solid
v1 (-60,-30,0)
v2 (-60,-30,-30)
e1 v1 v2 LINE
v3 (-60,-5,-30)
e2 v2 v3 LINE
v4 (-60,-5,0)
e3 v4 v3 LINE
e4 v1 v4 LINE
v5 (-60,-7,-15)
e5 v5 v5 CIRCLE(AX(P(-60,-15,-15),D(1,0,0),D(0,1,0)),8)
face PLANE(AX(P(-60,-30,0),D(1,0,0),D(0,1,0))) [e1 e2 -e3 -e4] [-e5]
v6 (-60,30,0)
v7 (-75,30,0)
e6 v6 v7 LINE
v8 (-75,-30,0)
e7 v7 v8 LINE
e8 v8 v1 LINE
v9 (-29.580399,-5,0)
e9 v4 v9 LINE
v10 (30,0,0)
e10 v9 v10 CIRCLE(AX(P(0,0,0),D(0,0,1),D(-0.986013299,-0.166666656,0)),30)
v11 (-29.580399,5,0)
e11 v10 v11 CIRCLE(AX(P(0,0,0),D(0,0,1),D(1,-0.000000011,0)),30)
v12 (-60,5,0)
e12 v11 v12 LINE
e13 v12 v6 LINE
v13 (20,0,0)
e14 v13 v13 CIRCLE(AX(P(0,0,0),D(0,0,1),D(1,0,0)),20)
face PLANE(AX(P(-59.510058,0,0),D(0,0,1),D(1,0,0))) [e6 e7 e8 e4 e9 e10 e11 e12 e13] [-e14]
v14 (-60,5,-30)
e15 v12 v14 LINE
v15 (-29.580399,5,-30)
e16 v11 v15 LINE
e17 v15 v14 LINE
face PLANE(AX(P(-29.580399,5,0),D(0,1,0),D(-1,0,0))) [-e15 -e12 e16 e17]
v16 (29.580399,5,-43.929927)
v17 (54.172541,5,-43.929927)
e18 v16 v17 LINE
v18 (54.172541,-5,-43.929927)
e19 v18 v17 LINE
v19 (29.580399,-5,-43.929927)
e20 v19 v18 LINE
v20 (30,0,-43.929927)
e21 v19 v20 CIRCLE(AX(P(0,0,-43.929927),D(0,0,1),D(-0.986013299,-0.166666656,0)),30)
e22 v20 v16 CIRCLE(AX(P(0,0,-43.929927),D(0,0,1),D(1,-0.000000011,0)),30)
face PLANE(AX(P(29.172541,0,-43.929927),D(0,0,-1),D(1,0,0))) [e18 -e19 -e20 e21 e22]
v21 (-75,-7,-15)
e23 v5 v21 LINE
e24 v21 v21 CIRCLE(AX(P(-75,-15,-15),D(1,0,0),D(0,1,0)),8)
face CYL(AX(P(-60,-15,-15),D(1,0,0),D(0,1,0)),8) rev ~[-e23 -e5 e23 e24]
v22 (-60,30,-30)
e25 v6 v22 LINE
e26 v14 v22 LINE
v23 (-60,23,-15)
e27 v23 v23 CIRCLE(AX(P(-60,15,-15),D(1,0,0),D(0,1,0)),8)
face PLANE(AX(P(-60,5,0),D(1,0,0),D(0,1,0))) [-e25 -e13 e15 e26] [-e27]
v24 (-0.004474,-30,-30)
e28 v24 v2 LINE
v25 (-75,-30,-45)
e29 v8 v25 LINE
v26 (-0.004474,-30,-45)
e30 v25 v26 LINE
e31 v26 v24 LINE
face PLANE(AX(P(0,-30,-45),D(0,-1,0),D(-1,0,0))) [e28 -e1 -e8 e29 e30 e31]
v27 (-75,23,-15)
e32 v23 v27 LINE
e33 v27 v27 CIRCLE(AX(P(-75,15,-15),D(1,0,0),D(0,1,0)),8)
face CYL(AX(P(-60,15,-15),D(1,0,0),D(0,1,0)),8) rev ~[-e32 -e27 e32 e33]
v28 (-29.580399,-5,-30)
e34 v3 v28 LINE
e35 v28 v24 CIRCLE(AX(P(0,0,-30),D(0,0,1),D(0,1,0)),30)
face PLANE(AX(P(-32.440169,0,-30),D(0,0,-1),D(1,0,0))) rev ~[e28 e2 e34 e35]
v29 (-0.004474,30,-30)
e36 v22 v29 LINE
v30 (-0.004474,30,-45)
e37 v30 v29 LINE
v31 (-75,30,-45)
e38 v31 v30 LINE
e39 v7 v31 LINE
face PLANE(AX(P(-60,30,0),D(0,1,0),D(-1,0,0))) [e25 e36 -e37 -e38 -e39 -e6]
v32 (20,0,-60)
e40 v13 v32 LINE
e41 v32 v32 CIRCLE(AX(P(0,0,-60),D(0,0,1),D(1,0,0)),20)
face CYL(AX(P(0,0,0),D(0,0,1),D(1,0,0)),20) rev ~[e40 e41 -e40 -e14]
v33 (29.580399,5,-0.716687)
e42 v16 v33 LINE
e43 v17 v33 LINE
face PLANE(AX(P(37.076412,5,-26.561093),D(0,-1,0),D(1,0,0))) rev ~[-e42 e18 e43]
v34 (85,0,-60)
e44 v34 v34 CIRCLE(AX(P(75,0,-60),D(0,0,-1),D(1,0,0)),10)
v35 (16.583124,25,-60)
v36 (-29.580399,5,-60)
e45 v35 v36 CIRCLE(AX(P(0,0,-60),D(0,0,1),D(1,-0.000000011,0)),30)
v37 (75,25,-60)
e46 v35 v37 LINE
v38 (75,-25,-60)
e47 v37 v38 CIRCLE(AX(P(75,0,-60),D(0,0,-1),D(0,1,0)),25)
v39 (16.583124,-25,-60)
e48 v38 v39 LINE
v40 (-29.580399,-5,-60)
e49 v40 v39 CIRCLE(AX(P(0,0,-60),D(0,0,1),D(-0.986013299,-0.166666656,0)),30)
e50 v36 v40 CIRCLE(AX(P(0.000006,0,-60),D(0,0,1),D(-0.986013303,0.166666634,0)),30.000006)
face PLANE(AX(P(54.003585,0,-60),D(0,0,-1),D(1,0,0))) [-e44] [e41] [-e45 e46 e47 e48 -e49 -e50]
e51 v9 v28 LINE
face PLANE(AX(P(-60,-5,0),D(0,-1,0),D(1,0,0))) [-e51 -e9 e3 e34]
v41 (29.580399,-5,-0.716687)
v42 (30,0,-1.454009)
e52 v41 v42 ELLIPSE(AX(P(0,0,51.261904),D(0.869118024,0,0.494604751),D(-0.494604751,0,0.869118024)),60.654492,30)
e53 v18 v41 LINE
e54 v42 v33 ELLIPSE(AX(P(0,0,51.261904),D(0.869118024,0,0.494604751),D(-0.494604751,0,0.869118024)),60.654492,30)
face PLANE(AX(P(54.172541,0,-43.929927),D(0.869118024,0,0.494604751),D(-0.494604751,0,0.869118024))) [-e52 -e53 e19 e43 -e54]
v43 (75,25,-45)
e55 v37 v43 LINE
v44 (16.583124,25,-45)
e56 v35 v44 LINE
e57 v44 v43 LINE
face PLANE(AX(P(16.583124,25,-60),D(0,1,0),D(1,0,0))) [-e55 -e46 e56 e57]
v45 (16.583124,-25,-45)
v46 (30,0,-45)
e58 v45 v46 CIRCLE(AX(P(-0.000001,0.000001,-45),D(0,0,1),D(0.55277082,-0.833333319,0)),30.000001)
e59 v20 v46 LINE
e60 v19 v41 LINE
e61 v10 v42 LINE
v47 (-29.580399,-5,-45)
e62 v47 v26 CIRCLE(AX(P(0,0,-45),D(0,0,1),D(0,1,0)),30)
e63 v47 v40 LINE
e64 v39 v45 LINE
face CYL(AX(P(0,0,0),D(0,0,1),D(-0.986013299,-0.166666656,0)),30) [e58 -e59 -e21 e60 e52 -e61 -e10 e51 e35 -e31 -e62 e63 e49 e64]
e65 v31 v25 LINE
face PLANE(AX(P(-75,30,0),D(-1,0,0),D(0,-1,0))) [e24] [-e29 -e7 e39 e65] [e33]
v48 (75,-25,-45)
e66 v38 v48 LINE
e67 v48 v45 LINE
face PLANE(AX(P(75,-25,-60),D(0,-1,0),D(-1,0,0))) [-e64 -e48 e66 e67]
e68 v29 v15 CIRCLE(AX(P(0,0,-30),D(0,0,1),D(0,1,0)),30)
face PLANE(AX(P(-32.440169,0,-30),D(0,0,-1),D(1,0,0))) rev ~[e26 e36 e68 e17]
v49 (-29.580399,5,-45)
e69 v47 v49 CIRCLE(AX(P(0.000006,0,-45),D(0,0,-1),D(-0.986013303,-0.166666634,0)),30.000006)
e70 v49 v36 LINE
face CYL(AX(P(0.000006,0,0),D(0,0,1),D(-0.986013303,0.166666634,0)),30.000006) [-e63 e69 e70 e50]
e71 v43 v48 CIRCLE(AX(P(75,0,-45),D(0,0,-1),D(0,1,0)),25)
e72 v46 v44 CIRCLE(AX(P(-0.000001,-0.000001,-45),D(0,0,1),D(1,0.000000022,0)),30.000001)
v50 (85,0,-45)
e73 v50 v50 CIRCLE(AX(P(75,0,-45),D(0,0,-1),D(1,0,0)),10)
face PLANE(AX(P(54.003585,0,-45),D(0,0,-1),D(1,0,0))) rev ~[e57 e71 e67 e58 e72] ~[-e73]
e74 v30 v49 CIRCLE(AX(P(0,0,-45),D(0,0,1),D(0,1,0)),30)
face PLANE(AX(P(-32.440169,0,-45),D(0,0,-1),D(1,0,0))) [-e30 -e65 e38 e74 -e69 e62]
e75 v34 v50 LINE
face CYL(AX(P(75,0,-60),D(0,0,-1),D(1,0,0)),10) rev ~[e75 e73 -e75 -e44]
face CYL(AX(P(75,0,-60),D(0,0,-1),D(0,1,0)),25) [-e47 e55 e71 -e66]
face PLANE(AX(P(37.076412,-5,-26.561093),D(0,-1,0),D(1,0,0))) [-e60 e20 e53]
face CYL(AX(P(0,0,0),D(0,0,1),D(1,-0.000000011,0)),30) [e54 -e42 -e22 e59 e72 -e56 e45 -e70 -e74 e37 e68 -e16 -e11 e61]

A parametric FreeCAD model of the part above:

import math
import FreeCAD as App
import Part
import Sketcher

V = App.Vector

doc = App.newDocument("Part")
body = doc.addObject("PartDesign::Body", "Body")

# Sketch on XY plane
sketch1 = body.newObject("Sketcher::SketchObject", "Sketch")
sketch1.AttachmentSupport = (doc.getObject("XY_Plane"), [""])
sketch1.MapMode = "FlatFace"
sketch1.addGeometry(Part.ArcOfCircle(Part.Circle(V(0, 0, 0), V(0, 0, 1), 30), math.radians(-170), math.radians(0)), False)
sketch1.addGeometry(Part.ArcOfCircle(Part.Circle(V(0, 0, 0), V(0, 0, 1), 30), math.radians(0), math.radians(170)), False)
sketch1.addGeometry(Part.ArcOfCircle(Part.Circle(V(0, 0, 0), V(0, 0, 1), 30), math.radians(170.41), math.radians(189.59)), False)
sketch1.addGeometry(Part.Circle(V(0, 0, 0), V(0, 0, 1), 20), False)
sketch1.addConstraint(Sketcher.Constraint("Tangent", 0, 2, 1, 1))
sketch1.addConstraint(Sketcher.Constraint("Tangent", 1, 2, 2, 1))
sketch1.addConstraint(Sketcher.Constraint("Tangent", 2, 2, 0, 1))
sketch1.addConstraint(Sketcher.Constraint("Coincident", 0, 3, -1, 1))
sketch1.addConstraint(Sketcher.Constraint("Coincident", 3, 3, -1, 1))
sketch1.addConstraint(Sketcher.Constraint("PointOnObject", 0, 2, -1))
sketch1.addConstraint(Sketcher.Constraint("Vertical", 1, 2, 2, 2))
sketch1.addConstraint(Sketcher.Constraint("Diameter", 3, 40.0))
sketch1.addConstraint(Sketcher.Constraint("Radius", 0, 30.0))
sketch1.addConstraint(Sketcher.Constraint("DistanceY", -1, 1, 1, 2, 5.0))
pad1 = body.newObject("PartDesign::Pad", "Pad")
pad1.Profile = sketch1
pad1.Length = 60
pad1.Reversed = True

# Sketch on XY plane
sketch2 = body.newObject("Sketcher::SketchObject", "Sketch001")
sketch2.AttachmentSupport = (doc.getObject("XY_Plane"), [""])
sketch2.MapMode = "FlatFace"
sketch2.AttachmentOffset = App.Placement(V(0, 0, -60), App.Rotation())
sketch2.addGeometry(Part.LineSegment(V(17, 25, 0), V(75, 25, 0)), False)
sketch2.addGeometry(Part.ArcOfCircle(Part.Circle(V(75, 0, 0), V(0, 0, 1), 25), math.radians(-90), math.radians(90)), False)
sketch2.addGeometry(Part.LineSegment(V(75, -25, 0), V(17, -25, 0)), False)
sketch2.addGeometry(Part.ArcOfCircle(Part.Circle(V(0, 0, 0), V(0, 0, 1), 30), math.radians(-56), math.radians(0)), False)
sketch2.addGeometry(Part.ArcOfCircle(Part.Circle(V(0, 0, 0), V(0, 0, 1), 30), math.radians(0), math.radians(56)), False)
sketch2.addGeometry(Part.Circle(V(75, 0, 0), V(0, 0, 1), 10), False)
sketch2.addConstraint(Sketcher.Constraint("Tangent", 0, 2, 1, 2))
sketch2.addConstraint(Sketcher.Constraint("Tangent", 1, 1, 2, 1))
sketch2.addConstraint(Sketcher.Constraint("Coincident", 2, 2, 3, 1))
sketch2.addConstraint(Sketcher.Constraint("Tangent", 3, 2, 4, 1))
sketch2.addConstraint(Sketcher.Constraint("Coincident", 4, 2, 0, 1))
sketch2.addConstraint(Sketcher.Constraint("Horizontal", 0))
sketch2.addConstraint(Sketcher.Constraint("Horizontal", 2))
sketch2.addConstraint(Sketcher.Constraint("Coincident", 3, 3, -1, 1))
sketch2.addConstraint(Sketcher.Constraint("Coincident", 5, 3, 1, 3))
sketch2.addConstraint(Sketcher.Constraint("Equal", 3, 4))
sketch2.addConstraint(Sketcher.Constraint("PointOnObject", 1, 3, -1))
sketch2.addConstraint(Sketcher.Constraint("PointOnObject", 3, 2, -1))
sketch2.addConstraint(Sketcher.Constraint("Diameter", 5, 20.0))
sketch2.addConstraint(Sketcher.Constraint("Radius", 1, 25.0))
sketch2.addConstraint(Sketcher.Constraint("Radius", 3, 30.000001))
sketch2.addConstraint(Sketcher.Constraint("DistanceX", -1, 1, 1, 3, 75.0))
pad2 = body.newObject("PartDesign::Pad", "Pad001")
pad2.Profile = sketch2
pad2.Length = 15

# Sketch on XY plane
sketch3 = body.newObject("Sketcher::SketchObject", "Sketch002")
sketch3.AttachmentSupport = (doc.getObject("XY_Plane"), [""])
sketch3.MapMode = "FlatFace"
sketch3.addGeometry(Part.ArcOfCircle(Part.Circle(V(0, 0, 0), V(0, 0, 1), 30), math.radians(170.41), math.radians(189.59)), False)
sketch3.addGeometry(Part.LineSegment(V(-30, 5, 0), V(-60, 5, 0)), False)
sketch3.addGeometry(Part.LineSegment(V(-60, 5, 0), V(-60, 30, 0)), False)
sketch3.addGeometry(Part.LineSegment(V(-60, 30, 0), V(-75, 30, 0)), False)
sketch3.addGeometry(Part.LineSegment(V(-75, 30, 0), V(-75, -30, 0)), False)
sketch3.addGeometry(Part.LineSegment(V(-75, -30, 0), V(-60, -30, 0)), False)
sketch3.addGeometry(Part.LineSegment(V(-60, -30, 0), V(-60, -5, 0)), False)
sketch3.addGeometry(Part.LineSegment(V(-60, -5, 0), V(-30, -5, 0)), False)
sketch3.addConstraint(Sketcher.Constraint("Coincident", 0, 1, 1, 1))
sketch3.addConstraint(Sketcher.Constraint("Coincident", 1, 2, 2, 1))
sketch3.addConstraint(Sketcher.Constraint("Coincident", 2, 2, 3, 1))
sketch3.addConstraint(Sketcher.Constraint("Coincident", 3, 2, 4, 1))
sketch3.addConstraint(Sketcher.Constraint("Coincident", 4, 2, 5, 1))
sketch3.addConstraint(Sketcher.Constraint("Coincident", 5, 2, 6, 1))
sketch3.addConstraint(Sketcher.Constraint("Coincident", 6, 2, 7, 1))
sketch3.addConstraint(Sketcher.Constraint("Coincident", 7, 2, 0, 2))
sketch3.addConstraint(Sketcher.Constraint("Horizontal", 1))
sketch3.addConstraint(Sketcher.Constraint("Vertical", 2))
sketch3.addConstraint(Sketcher.Constraint("Horizontal", 3))
sketch3.addConstraint(Sketcher.Constraint("Vertical", 4))
sketch3.addConstraint(Sketcher.Constraint("Horizontal", 5))
sketch3.addConstraint(Sketcher.Constraint("Vertical", 6))
sketch3.addConstraint(Sketcher.Constraint("Horizontal", 7))
sketch3.addConstraint(Sketcher.Constraint("Coincident", 0, 3, -1, 1))
sketch3.addConstraint(Sketcher.Constraint("Symmetric", 2, 2, 5, 2, -1))
sketch3.addConstraint(Sketcher.Constraint("Vertical", 0, 1, 7, 2))
sketch3.addConstraint(Sketcher.Constraint("DistanceX", 3, 2, 3, 1, 15.0))
sketch3.addConstraint(Sketcher.Constraint("DistanceY", 2, 1, 2, 2, 25.0))
sketch3.addConstraint(Sketcher.Constraint("DistanceY", 4, 2, 4, 1, 60.0))
sketch3.addConstraint(Sketcher.Constraint("DistanceX", 1, 2, -1, 1, 60.0))
sketch3.addConstraint(Sketcher.Constraint("DistanceX", 1, 2, 1, 1, 30.419601))
pad3 = body.newObject("PartDesign::Pad", "Pad002")
pad3.Profile = sketch3
pad3.Length = 45
pad3.Reversed = True

# Sketch on XY plane
sketch4 = body.newObject("Sketcher::SketchObject", "Sketch003")
sketch4.AttachmentSupport = (doc.getObject("XY_Plane"), [""])
sketch4.MapMode = "FlatFace"
sketch4.AttachmentOffset = App.Placement(V(0, 0, -45), App.Rotation())
sketch4.addGeometry(Part.LineSegment(V(0, -30, 0), V(-60, -30, 0)), False)
sketch4.addGeometry(Part.LineSegment(V(-60, -30, 0), V(-60, 30, 0)), False)
sketch4.addGeometry(Part.LineSegment(V(-60, 30, 0), V(0, 30, 0)), False)
sketch4.addGeometry(Part.ArcOfCircle(Part.Circle(V(0, 0, 0), V(0, 0, 1), 30), math.radians(90), math.radians(270)), False)
sketch4.addConstraint(Sketcher.Constraint("Coincident", 0, 2, 1, 1))
sketch4.addConstraint(Sketcher.Constraint("Coincident", 1, 2, 2, 1))
sketch4.addConstraint(Sketcher.Constraint("Tangent", 2, 2, 3, 1))
sketch4.addConstraint(Sketcher.Constraint("Tangent", 3, 2, 0, 1))
sketch4.addConstraint(Sketcher.Constraint("Horizontal", 0))
sketch4.addConstraint(Sketcher.Constraint("Vertical", 1))
sketch4.addConstraint(Sketcher.Constraint("Horizontal", 2))
sketch4.addConstraint(Sketcher.Constraint("Coincident", 3, 3, -1, 1))
sketch4.addConstraint(Sketcher.Constraint("Equal", 2, 1))
sketch4.addConstraint(Sketcher.Constraint("Radius", 3, 30.0))
pad4 = body.newObject("PartDesign::Pad", "Pad003")
pad4.Profile = sketch4
pad4.Length = 15

# Sketch on XZ plane
sketch5 = body.newObject("Sketcher::SketchObject", "Sketch004")
sketch5.AttachmentSupport = (doc.getObject("XZ_Plane"), [""])
sketch5.MapMode = "FlatFace"
sketch5.addGeometry(Part.LineSegment(V(29, 0, 0), V(29, -44, 0)), False)
sketch5.addGeometry(Part.LineSegment(V(29, -44, 0), V(54, -44, 0)), False)
sketch5.addGeometry(Part.LineSegment(V(54, -44, 0), V(29, 0, 0)), False)
sketch5.addConstraint(Sketcher.Constraint("Coincident", 0, 2, 1, 1))
sketch5.addConstraint(Sketcher.Constraint("Coincident", 1, 2, 2, 1))
sketch5.addConstraint(Sketcher.Constraint("Coincident", 2, 2, 0, 1))
sketch5.addConstraint(Sketcher.Constraint("Vertical", 0))
sketch5.addConstraint(Sketcher.Constraint("Horizontal", 1))
sketch5.addConstraint(Sketcher.Constraint("PointOnObject", 2, 2, -1))
sketch5.addConstraint(Sketcher.Constraint("DistanceX", 1, 1, 1, 2, 25.0))
sketch5.addConstraint(Sketcher.Constraint("Distance", 2, 50.54541))
sketch5.addConstraint(Sketcher.Constraint("DistanceX", -1, 1, 0, 2, 29.172541))
pad5 = body.newObject("PartDesign::Pad", "Pad004")
pad5.Profile = sketch5
pad5.Length = 10
pad5.Midplane = True

# Sketch on YZ plane
sketch6 = body.newObject("Sketcher::SketchObject", "Sketch005")
sketch6.AttachmentSupport = (doc.getObject("YZ_Plane"), [""])
sketch6.MapMode = "FlatFace"
sketch6.AttachmentOffset = App.Placement(V(0, 0, -60), App.Rotation())
sketch6.addGeometry(Part.Circle(V(-15, -15, 0), V(0, 0, 1), 8), False)
sketch6.addGeometry(Part.Circle(V(15, -15, 0), V(0, 0, 1), 8), False)
sketch6.addConstraint(Sketcher.Constraint("Equal", 0, 1))
sketch6.addConstraint(Sketcher.Constraint("Symmetric", 0, 3, 1, 3, -2))
sketch6.addConstraint(Sketcher.Constraint("Diameter", 0, 16.0))
sketch6.addConstraint(Sketcher.Constraint("DistanceX", 0, 3, -1, 1, 15.0))
sketch6.addConstraint(Sketcher.Constraint("DistanceY", 0, 3, -1, 1, 15.0))
pocket1 = body.newObject("PartDesign::Pocket", "Pocket")
pocket1.Profile = sketch6
pocket1.Type = "ThroughAll"

doc.recompute()
